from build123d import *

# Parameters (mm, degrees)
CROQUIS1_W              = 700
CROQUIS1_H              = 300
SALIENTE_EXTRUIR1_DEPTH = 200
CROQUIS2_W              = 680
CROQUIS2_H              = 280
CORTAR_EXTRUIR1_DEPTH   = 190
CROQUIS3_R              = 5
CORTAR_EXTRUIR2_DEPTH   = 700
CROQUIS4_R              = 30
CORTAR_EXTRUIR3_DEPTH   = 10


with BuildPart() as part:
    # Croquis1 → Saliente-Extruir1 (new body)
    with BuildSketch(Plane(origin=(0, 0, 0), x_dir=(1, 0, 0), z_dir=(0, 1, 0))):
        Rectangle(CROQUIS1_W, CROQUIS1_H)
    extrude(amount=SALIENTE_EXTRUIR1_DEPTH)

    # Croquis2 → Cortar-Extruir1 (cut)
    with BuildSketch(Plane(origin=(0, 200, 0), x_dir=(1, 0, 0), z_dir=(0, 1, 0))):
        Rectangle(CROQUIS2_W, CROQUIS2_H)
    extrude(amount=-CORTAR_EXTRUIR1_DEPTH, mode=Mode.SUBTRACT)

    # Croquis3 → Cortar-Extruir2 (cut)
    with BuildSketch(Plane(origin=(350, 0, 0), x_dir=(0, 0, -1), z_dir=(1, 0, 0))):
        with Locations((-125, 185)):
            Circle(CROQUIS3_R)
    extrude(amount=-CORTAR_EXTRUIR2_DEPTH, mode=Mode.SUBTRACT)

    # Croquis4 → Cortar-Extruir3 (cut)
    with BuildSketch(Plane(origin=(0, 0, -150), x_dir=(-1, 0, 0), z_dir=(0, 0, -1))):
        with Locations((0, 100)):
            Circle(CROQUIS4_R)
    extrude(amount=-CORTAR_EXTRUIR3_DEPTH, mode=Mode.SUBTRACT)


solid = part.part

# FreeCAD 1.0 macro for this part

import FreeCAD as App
import Part
import Sketcher
from FreeCAD import Vector


def add_polygon(sketch, points):
    """Adds a closed chain of lines whose ends are joined by coincident constraints."""
    first, n = sketch.GeometryCount, len(points)
    for a, b in zip(points, points[1:] + points[:1]):
        sketch.addGeometry(Part.LineSegment(App.Vector(*a, 0), App.Vector(*b, 0)), False)
    for i in range(n):
        sketch.addConstraint(Sketcher.Constraint("Coincident", first + i, 2, first + (i + 1) % n, 1))

doc = App.newDocument("Part")
params = doc.addObject("Spreadsheet::Sheet", "Params")
for row, (alias, value) in enumerate([
    ("sketch1_width", "700 mm"),
    ("sketch1_height", "300 mm"),
    ("pad1_length", "200 mm"),
    ("sketch2_width", "680 mm"),
    ("sketch2_height", "280 mm"),
    ("pocket1_length", "190 mm"),
    ("sketch3_diameter", "10 mm"),
    ("pocket2_length", "700 mm"),
    ("sketch4_diameter", "60 mm"),
    ("pocket3_length", "10 mm"),
], start=1):
    params.set(f"A{row}", alias)
    params.set(f"B{row}", "=" + value)
    params.setAlias(f"B{row}", alias)

body = doc.addObject("PartDesign::Body", "Body")

sketch1 = doc.addObject("Sketcher::SketchObject", "Sketch")
body.addObject(sketch1)
sketch1.AttachmentSupport = (doc.XZ_Plane, [""])
sketch1.MapMode = "FlatFace"
add_polygon(sketch1, [(-350, -150), (-350, 150), (350, 150), (350, -150)])
sketch1.addConstraint(Sketcher.Constraint("Vertical", 0))
sketch1.addConstraint(Sketcher.Constraint("Horizontal", 1))
sketch1.addConstraint(Sketcher.Constraint("Vertical", 2))
sketch1.addConstraint(Sketcher.Constraint("Horizontal", 3))
sketch1.addConstraint(Sketcher.Constraint("Symmetric", 0, 2, 2, 2, -1, 1))
sketch1.addConstraint(Sketcher.Constraint("DistanceX", 1, 1, 1, 2, 700.0))
sketch1.addConstraint(Sketcher.Constraint("DistanceY", 0, 1, 0, 2, 300.0))
sketch1.setExpression("Constraints[9]", "Params.sketch1_width")
sketch1.setExpression("Constraints[10]", "Params.sketch1_height")
pad1 = doc.addObject("PartDesign::Pad", "Pad")
body.addObject(pad1)
pad1.Profile = sketch1
pad1.setExpression("Length", "Params.pad1_length")
pad1.Reversed = True

sketch2 = doc.addObject("Sketcher::SketchObject", "Sketch001")
body.addObject(sketch2)
sketch2.AttachmentSupport = (doc.XZ_Plane, [""])
sketch2.MapMode = "FlatFace"
sketch2.AttachmentOffset = App.Placement(Vector(0, 0, -200), App.Rotation())
add_polygon(sketch2, [(-340, -140), (-340, 140), (340, 140), (340, -140)])
sketch2.addConstraint(Sketcher.Constraint("Vertical", 0))
sketch2.addConstraint(Sketcher.Constraint("Horizontal", 1))
sketch2.addConstraint(Sketcher.Constraint("Vertical", 2))
sketch2.addConstraint(Sketcher.Constraint("Horizontal", 3))
sketch2.addConstraint(Sketcher.Constraint("Symmetric", 0, 2, 2, 2, -1, 1))
sketch2.addConstraint(Sketcher.Constraint("DistanceX", 1, 1, 1, 2, 680.0))
sketch2.addConstraint(Sketcher.Constraint("DistanceY", 0, 1, 0, 2, 280.0))
sketch2.setExpression("Constraints[9]", "Params.sketch2_width")
sketch2.setExpression("Constraints[10]", "Params.sketch2_height")
pocket1 = doc.addObject("PartDesign::Pocket", "Pocket")
body.addObject(pocket1)
pocket1.Profile = sketch2
pocket1.setExpression("Length", "Params.pocket1_length")
pocket1.Reversed = True

sketch3 = doc.addObject("Sketcher::SketchObject", "Sketch002")
body.addObject(sketch3)
sketch3.AttachmentSupport = (doc.YZ_Plane, [""])
sketch3.MapMode = "FlatFace"
sketch3.AttachmentOffset = App.Placement(Vector(0, 0, 350), App.Rotation())
sketch3.addGeometry(Part.Circle(Vector(185, 125, 0), Vector(0, 0, 1), 5), False)
sketch3.addConstraint(Sketcher.Constraint("Diameter", 0, 10.0))
sketch3.addConstraint(Sketcher.Constraint("DistanceX", -1, 1, 0, 3, 185.0))
sketch3.addConstraint(Sketcher.Constraint("DistanceY", -1, 1, 0, 3, 125.0))
sketch3.setExpression("Constraints[0]", "Params.sketch3_diameter")
pocket2 = doc.addObject("PartDesign::Pocket", "Pocket001")
body.addObject(pocket2)
pocket2.Profile = sketch3
pocket2.setExpression("Length", "Params.pocket2_length")

sketch4 = doc.addObject("Sketcher::SketchObject", "Sketch003")
body.addObject(sketch4)
sketch4.AttachmentSupport = (doc.XY_Plane, [""])
sketch4.MapMode = "FlatFace"
sketch4.AttachmentOffset = App.Placement(Vector(0, 0, -150), App.Rotation())
sketch4.addGeometry(Part.Circle(Vector(0, 100, 0), Vector(0, 0, 1), 30), False)
sketch4.addConstraint(Sketcher.Constraint("PointOnObject", 0, 3, -2))
sketch4.addConstraint(Sketcher.Constraint("Diameter", 0, 60.0))
sketch4.addConstraint(Sketcher.Constraint("DistanceY", -1, 1, 0, 3, 100.0))
sketch4.setExpression("Constraints[1]", "Params.sketch4_diameter")
pocket3 = doc.addObject("PartDesign::Pocket", "Pocket002")
body.addObject(pocket3)
pocket3.Profile = sketch4
pocket3.setExpression("Length", "Params.pocket3_length")
pocket3.Reversed = True

doc.recompute()
